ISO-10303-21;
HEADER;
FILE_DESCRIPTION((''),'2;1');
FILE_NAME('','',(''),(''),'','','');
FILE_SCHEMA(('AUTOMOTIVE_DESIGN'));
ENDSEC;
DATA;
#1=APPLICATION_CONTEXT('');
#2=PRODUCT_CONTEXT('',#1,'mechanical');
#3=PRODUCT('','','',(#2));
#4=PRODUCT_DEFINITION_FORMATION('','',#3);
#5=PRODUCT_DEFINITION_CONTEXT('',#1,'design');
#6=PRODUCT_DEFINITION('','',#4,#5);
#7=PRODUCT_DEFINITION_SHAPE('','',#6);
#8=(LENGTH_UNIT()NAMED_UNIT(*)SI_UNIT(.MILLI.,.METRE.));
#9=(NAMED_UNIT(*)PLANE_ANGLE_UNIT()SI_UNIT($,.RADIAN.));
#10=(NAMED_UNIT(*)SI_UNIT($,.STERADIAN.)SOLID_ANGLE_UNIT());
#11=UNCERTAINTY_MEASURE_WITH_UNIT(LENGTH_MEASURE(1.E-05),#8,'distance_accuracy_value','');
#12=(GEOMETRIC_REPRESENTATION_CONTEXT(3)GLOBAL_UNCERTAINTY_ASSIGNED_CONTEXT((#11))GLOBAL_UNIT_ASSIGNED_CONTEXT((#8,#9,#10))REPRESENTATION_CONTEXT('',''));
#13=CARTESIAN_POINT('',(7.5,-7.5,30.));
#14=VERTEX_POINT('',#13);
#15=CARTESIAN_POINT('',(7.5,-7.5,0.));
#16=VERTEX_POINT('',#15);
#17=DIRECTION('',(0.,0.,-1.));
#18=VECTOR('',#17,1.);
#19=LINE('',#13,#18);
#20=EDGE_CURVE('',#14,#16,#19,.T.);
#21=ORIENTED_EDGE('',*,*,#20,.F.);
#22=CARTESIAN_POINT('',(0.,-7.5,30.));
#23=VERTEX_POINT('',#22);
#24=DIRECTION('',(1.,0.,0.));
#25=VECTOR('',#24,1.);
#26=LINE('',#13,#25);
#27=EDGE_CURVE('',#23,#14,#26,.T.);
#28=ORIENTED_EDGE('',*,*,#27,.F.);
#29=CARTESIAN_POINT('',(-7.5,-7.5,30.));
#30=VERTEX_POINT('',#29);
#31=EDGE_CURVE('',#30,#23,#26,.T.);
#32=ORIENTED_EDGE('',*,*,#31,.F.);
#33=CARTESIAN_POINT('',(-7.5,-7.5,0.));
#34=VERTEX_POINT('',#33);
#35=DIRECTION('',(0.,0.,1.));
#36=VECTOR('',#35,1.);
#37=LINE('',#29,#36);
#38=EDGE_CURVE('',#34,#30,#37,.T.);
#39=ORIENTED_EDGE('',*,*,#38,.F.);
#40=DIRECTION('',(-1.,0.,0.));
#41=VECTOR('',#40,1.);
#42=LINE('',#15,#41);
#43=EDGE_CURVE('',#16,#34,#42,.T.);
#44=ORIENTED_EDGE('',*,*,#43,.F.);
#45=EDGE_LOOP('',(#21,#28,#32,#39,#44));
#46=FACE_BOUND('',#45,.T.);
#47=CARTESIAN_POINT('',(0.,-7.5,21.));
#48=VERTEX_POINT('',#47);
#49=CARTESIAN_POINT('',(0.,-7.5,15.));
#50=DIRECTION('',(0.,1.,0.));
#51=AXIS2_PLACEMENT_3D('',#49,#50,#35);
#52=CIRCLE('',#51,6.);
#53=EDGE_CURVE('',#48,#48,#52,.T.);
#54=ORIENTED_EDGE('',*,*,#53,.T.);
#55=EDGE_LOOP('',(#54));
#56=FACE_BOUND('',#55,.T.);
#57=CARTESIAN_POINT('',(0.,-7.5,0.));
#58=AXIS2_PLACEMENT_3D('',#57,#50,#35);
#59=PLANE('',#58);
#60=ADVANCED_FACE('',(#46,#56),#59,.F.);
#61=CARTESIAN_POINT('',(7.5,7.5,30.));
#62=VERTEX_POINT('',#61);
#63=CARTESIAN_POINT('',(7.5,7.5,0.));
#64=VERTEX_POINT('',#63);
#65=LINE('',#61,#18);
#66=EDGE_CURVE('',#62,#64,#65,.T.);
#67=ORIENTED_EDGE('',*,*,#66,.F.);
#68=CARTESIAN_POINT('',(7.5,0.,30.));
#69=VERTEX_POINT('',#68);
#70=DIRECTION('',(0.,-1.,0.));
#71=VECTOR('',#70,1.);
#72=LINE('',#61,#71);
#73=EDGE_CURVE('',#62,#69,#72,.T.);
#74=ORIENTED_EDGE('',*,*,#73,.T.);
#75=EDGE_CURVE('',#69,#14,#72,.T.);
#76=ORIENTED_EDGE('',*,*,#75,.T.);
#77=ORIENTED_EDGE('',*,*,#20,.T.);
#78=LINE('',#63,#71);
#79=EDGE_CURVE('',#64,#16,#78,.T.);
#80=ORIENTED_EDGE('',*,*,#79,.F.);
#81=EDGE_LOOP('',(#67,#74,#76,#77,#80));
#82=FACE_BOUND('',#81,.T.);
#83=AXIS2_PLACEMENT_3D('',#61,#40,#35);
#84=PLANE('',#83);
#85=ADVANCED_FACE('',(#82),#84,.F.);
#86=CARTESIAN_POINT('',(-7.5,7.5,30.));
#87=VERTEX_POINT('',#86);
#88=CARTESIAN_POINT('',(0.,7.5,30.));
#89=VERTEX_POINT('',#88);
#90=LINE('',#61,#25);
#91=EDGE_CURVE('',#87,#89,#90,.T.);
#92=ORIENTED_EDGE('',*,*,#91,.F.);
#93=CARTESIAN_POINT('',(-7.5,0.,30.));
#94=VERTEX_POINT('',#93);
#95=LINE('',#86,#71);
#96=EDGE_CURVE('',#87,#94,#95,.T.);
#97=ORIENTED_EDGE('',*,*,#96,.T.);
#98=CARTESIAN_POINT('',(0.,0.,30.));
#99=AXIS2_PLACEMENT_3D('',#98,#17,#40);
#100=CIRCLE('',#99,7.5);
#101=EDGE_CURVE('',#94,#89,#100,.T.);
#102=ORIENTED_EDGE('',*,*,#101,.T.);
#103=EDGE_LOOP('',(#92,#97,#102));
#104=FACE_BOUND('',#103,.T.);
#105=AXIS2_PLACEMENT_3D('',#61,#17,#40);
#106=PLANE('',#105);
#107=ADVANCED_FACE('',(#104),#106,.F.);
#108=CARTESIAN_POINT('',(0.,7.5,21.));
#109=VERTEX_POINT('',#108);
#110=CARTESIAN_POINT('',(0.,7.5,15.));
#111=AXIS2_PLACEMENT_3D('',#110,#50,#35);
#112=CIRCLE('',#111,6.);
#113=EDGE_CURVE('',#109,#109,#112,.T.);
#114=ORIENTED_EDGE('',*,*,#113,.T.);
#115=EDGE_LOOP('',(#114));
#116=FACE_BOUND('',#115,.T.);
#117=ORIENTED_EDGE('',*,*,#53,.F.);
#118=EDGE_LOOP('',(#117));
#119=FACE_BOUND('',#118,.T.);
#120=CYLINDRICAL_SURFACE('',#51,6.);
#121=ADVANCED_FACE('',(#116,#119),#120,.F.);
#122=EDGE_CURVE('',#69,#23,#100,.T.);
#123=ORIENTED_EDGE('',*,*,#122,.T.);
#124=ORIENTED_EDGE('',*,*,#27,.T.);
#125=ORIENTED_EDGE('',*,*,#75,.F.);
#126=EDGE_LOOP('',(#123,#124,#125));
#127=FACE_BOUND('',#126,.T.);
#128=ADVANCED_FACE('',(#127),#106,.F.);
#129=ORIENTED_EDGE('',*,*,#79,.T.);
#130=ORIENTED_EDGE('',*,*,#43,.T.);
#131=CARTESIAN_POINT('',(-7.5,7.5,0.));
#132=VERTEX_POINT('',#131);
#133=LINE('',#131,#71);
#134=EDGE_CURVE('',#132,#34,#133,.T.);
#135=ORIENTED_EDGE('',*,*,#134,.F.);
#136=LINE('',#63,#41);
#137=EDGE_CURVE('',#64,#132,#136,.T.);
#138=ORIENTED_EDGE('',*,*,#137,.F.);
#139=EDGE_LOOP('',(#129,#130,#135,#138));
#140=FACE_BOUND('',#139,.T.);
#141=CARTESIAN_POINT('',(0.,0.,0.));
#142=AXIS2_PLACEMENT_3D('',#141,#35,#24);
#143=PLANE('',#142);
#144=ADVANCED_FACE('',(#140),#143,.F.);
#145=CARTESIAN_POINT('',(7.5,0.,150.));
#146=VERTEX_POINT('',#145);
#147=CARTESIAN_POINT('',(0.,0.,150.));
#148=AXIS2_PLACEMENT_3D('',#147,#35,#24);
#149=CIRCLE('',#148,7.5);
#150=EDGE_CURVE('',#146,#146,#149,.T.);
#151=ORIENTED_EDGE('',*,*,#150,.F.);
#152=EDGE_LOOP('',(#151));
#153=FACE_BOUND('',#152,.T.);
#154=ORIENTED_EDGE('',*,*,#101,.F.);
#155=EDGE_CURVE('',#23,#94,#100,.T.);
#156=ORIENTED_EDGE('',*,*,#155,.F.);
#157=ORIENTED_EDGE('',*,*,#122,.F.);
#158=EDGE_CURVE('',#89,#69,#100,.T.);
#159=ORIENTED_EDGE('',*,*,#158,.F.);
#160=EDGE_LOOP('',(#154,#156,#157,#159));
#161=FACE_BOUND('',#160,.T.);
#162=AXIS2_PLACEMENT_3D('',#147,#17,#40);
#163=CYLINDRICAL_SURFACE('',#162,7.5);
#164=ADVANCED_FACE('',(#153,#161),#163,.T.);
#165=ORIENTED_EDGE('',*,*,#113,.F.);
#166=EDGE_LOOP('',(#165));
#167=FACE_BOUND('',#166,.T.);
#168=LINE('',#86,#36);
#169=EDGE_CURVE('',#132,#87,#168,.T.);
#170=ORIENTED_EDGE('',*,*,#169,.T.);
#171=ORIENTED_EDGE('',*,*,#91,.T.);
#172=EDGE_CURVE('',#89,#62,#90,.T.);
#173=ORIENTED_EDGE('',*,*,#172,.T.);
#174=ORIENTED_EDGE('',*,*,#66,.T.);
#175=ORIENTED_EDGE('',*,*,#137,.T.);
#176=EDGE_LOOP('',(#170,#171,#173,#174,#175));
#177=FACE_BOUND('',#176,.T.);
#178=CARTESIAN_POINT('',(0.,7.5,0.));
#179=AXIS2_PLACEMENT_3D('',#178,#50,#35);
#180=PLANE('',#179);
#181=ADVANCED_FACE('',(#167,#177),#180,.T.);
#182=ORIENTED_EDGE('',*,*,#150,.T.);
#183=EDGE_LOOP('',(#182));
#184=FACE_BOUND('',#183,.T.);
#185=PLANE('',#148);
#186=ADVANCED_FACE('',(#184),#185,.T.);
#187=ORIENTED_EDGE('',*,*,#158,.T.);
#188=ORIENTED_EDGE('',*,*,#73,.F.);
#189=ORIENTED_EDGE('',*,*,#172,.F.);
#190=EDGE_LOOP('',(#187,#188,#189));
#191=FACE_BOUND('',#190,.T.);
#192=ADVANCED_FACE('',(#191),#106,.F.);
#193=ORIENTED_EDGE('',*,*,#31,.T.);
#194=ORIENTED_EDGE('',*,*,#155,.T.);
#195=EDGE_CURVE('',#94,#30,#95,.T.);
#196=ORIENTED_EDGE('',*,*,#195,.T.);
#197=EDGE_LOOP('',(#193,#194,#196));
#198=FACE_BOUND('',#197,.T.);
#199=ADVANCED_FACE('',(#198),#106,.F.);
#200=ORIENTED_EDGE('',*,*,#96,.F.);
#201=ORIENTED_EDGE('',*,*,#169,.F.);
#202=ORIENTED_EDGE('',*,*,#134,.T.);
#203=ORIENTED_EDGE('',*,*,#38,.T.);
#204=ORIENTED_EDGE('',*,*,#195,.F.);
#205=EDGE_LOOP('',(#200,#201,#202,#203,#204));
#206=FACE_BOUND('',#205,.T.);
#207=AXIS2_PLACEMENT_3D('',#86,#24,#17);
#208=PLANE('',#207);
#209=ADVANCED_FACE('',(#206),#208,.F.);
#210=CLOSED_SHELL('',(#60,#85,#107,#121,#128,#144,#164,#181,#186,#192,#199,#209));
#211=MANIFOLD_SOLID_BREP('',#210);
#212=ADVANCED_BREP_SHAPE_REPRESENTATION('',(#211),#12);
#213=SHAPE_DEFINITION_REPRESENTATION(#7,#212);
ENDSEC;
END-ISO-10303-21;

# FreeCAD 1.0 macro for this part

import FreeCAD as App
import Part
import Sketcher

V = App.Vector

doc = App.newDocument("Part")
body = doc.addObject("PartDesign::Body", "Body")

# Sketch on XY plane
sketch1 = body.newObject("Sketcher::SketchObject", "Sketch")
sketch1.AttachmentSupport = (doc.getObject("XY_Plane"), [""])
sketch1.MapMode = "FlatFace"
sketch1.addGeometry(Part.Circle(V(0, 0, 0), V(0, 0, 1), 8), False)
sketch1.addConstraint(Sketcher.Constraint("Coincident", 0, 3, -1, 1))
sketch1.addConstraint(Sketcher.Constraint("Diameter", 0, 15.0))
pad1 = body.newObject("PartDesign::Pad", "Pad")
pad1.Profile = sketch1
pad1.Length = 150

# Sketch on XZ plane
sketch2 = body.newObject("Sketcher::SketchObject", "Sketch001")
sketch2.AttachmentSupport = (doc.getObject("XZ_Plane"), [""])
sketch2.MapMode = "FlatFace"
sketch2.addGeometry(Part.LineSegment(V(-8, 0, 0), V(-8, 30, 0)), False)
sketch2.addGeometry(Part.LineSegment(V(-8, 30, 0), V(8, 30, 0)), False)
sketch2.addGeometry(Part.LineSegment(V(8, 30, 0), V(8, 0, 0)), False)
sketch2.addGeometry(Part.LineSegment(V(8, 0, 0), V(-8, 0, 0)), False)
sketch2.addConstraint(Sketcher.Constraint("Coincident", 0, 2, 1, 1))
sketch2.addConstraint(Sketcher.Constraint("Coincident", 1, 2, 2, 1))
sketch2.addConstraint(Sketcher.Constraint("Coincident", 2, 2, 3, 1))
sketch2.addConstraint(Sketcher.Constraint("Coincident", 3, 2, 0, 1))
sketch2.addConstraint(Sketcher.Constraint("Vertical", 0))
sketch2.addConstraint(Sketcher.Constraint("Horizontal", 1))
sketch2.addConstraint(Sketcher.Constraint("Vertical", 2))
sketch2.addConstraint(Sketcher.Constraint("Horizontal", 3))
sketch2.addConstraint(Sketcher.Constraint("Symmetric", 2, 2, 3, 2, -1, 1))
sketch2.addConstraint(Sketcher.Constraint("DistanceX", 1, 1, 1, 2, 15.0))
sketch2.addConstraint(Sketcher.Constraint("DistanceY", 0, 1, 0, 2, 30.0))
pad2 = body.newObject("PartDesign::Pad", "Pad001")
pad2.Profile = sketch2
pad2.Length = 15
pad2.Midplane = True

# Sketch on XZ plane
sketch3 = body.newObject("Sketcher::SketchObject", "Sketch002")
sketch3.AttachmentSupport = (doc.getObject("XZ_Plane"), [""])
sketch3.MapMode = "FlatFace"
sketch3.AttachmentOffset = App.Placement(V(0, 0, -7.5), App.Rotation())
sketch3.addGeometry(Part.Circle(V(0, 15, 0), V(0, 0, 1), 6), False)
sketch3.addConstraint(Sketcher.Constraint("PointOnObject", 0, 3, -2))
sketch3.addConstraint(Sketcher.Constraint("Diameter", 0, 12.0))
sketch3.addConstraint(Sketcher.Constraint("DistanceY", -1, 1, 0, 3, 15.0))
pocket1 = body.newObject("PartDesign::Pocket", "Pocket")
pocket1.Profile = sketch3
pocket1.Type = "ThroughAll"
pocket1.Reversed = True

doc.recompute()
